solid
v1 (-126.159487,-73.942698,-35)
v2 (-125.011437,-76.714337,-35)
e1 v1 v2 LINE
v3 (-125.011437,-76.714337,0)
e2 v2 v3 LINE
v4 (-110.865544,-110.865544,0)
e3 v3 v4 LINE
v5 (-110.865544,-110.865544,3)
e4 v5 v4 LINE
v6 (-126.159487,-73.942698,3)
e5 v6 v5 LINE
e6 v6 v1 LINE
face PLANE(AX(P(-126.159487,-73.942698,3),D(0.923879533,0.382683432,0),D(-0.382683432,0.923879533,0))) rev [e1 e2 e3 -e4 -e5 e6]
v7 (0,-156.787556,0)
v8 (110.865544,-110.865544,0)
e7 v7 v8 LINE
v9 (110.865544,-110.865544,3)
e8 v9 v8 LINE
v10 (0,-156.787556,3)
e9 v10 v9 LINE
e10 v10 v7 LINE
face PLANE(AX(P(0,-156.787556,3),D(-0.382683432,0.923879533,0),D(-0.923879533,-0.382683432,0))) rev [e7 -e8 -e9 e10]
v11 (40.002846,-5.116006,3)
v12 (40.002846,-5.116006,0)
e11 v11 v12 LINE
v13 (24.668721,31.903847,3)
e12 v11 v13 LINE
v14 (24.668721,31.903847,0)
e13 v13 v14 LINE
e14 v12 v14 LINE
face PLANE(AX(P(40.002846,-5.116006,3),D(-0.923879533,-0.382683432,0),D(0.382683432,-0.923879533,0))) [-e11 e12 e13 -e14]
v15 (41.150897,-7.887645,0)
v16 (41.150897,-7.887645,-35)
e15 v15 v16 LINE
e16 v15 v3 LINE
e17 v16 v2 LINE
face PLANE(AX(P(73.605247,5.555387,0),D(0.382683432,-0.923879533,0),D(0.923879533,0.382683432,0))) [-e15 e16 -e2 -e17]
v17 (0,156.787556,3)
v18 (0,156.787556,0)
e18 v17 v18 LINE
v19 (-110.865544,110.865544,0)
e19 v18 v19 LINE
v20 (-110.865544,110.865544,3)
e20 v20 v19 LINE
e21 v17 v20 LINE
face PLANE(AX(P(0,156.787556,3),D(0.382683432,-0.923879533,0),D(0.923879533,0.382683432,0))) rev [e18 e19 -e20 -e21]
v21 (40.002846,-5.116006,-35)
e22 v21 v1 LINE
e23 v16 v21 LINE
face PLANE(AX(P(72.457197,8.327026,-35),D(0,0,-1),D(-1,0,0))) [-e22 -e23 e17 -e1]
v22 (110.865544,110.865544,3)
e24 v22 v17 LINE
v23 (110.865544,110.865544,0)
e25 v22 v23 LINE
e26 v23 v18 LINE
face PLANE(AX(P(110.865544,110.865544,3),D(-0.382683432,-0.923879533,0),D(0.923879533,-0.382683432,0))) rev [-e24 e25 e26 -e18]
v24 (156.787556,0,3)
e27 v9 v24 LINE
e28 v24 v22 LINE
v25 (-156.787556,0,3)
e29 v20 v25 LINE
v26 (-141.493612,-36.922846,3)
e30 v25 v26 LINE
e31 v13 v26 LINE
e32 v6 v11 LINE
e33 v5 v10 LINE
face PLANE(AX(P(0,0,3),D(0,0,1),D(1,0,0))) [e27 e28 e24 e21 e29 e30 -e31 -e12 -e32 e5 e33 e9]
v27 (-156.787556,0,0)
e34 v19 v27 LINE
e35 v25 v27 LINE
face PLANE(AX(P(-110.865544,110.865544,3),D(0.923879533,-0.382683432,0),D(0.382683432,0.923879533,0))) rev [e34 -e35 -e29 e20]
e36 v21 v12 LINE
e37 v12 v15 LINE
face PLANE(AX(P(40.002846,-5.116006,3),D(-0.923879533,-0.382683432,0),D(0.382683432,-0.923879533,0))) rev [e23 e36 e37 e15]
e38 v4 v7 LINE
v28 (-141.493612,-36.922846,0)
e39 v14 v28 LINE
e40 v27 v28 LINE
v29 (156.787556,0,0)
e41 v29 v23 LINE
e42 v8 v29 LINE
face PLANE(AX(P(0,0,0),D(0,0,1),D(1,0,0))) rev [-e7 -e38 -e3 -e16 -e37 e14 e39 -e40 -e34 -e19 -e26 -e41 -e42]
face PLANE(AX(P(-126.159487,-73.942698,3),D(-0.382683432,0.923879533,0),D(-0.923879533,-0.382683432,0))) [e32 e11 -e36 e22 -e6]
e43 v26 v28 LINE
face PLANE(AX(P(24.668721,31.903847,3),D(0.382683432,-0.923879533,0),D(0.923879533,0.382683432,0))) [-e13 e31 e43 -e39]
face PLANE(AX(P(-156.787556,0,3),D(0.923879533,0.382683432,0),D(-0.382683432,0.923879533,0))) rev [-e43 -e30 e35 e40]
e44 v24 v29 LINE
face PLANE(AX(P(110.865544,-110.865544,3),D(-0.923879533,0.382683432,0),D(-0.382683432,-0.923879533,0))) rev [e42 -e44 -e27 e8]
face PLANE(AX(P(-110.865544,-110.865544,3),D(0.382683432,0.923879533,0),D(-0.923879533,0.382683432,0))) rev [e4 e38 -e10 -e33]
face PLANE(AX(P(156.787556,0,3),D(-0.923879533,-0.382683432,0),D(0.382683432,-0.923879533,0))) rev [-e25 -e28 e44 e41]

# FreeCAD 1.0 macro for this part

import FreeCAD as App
import Part
import Sketcher
from FreeCAD import Vector
Q = App.Units.Quantity

doc = App.newDocument("Part")
params = doc.addObject("Spreadsheet::Sheet", "Params")
for row, (alias, value) in enumerate([
    ("sketch1_length", "120 mm"),
    ("sketch1_length2", "40.07 mm"),
    ("pad1_length", "3 mm"),
    ("sketch2_width", "3 mm"),
    ("sketch2_height", "35 mm"),
    ("pad2_length", "179.852814 mm"),
], start=1):
    params.set(f"A{row}", alias)
    params.set(f"B{row}", "=" + value)
    params.setAlias(f"B{row}", alias)

body = doc.addObject("PartDesign::Body", "Body")

sketch1 = body.newObject("Sketcher::SketchObject", "Sketch")
sketch1.AttachmentSupport = (doc.getObject("XY_Plane"), [""])
sketch1.MapMode = "FlatFace"
sketch1.addGeometry([
    Part.LineSegment(Vector(0, 157, 0), Vector(-111, 111, 0)),
    Part.LineSegment(Vector(-111, 111, 0), Vector(-157, 0, 0)),
    Part.LineSegment(Vector(-157, 0, 0), Vector(-141, -37, 0)),
    Part.LineSegment(Vector(-141, -37, 0), Vector(25, 32, 0)),
    Part.LineSegment(Vector(25, 32, 0), Vector(40, -5, 0)),
    Part.LineSegment(Vector(40, -5, 0), Vector(-126, -74, 0)),
    Part.LineSegment(Vector(-126, -74, 0), Vector(-111, -111, 0)),
    Part.LineSegment(Vector(-111, -111, 0), Vector(0, -157, 0)),
    Part.LineSegment(Vector(0, -157, 0), Vector(111, -111, 0)),
    Part.LineSegment(Vector(111, -111, 0), Vector(157, 0, 0)),
    Part.LineSegment(Vector(157, 0, 0), Vector(111, 111, 0)),
    Part.LineSegment(Vector(111, 111, 0), Vector(0, 157, 0)),
], False)
sketch1.addConstraint([
    Sketcher.Constraint("Coincident", 0, 2, 1, 1),
    Sketcher.Constraint("Coincident", 1, 2, 2, 1),
    Sketcher.Constraint("Coincident", 2, 2, 3, 1),
    Sketcher.Constraint("Coincident", 3, 2, 4, 1),
    Sketcher.Constraint("Coincident", 4, 2, 5, 1),
    Sketcher.Constraint("Coincident", 5, 2, 6, 1),
    Sketcher.Constraint("Coincident", 6, 2, 7, 1),
    Sketcher.Constraint("Coincident", 7, 2, 8, 1),
    Sketcher.Constraint("Coincident", 8, 2, 9, 1),
    Sketcher.Constraint("Coincident", 9, 2, 10, 1),
    Sketcher.Constraint("Coincident", 10, 2, 11, 1),
    Sketcher.Constraint("Coincident", 11, 2, 0, 1),
    Sketcher.Constraint("Symmetric", 0, 2, 8, 2, -1, 1),
    Sketcher.Constraint("Symmetric", 1, 2, 9, 2, -1, 1),
    Sketcher.Constraint("Symmetric", 6, 2, 10, 2, -1, 1),
    Sketcher.Constraint("Symmetric", 7, 2, 11, 2, -1, 1),
    Sketcher.Constraint("Symmetric", 6, 2, 8, 2, -2),
    Sketcher.Constraint("PointOnObject", 1, 2, -1),
    Sketcher.Constraint("PointOnObject", 7, 2, -2),
    Sketcher.Constraint("Perpendicular", 0, 2),
    Sketcher.Constraint("Perpendicular", 2, 3),
    Sketcher.Constraint("Perpendicular", 3, 4),
    Sketcher.Constraint("Perpendicular", 4, 5),
    Sketcher.Constraint("Perpendicular", 5, 6),
    Sketcher.Constraint("Perpendicular", 1, 7),
    Sketcher.Constraint("Equal", 0, 1),
    Sketcher.Constraint("Equal", 2, 6),
    Sketcher.Constraint("Distance", 0, 120.0),
    Sketcher.Constraint("Angle", 0, Q("-157.5 deg")),
    Sketcher.Constraint("Distance", 4, 40.07),
    Sketcher.Constraint("DistanceX", 1, 2, 4, 2, 196.790402),
])
sketch1.setExpression("Constraints[27]", "Params.sketch1_length")
sketch1.setExpression("Constraints[29]", "Params.sketch1_length2")
pad1 = body.newObject("PartDesign::Pad", "Pad")
pad1.Profile = sketch1
pad1.setExpression("Length", "Params.pad1_length")

sketch2 = body.newObject("Sketcher::SketchObject", "Sketch001")
sketch2.Placement = App.Placement(Vector(32.335784, 13.39392, 0), App.Rotation(Vector(0.382683432, -0.923879533, 0), Vector(0, 0, 1.000000001), Vector(-0.923879533, -0.382683432, 0), "ZXY"))
sketch2.addGeometry([
    Part.LineSegment(Vector(20, 0, 0), Vector(20, -35, 0)),
    Part.LineSegment(Vector(20, -35, 0), Vector(23, -35, 0)),
    Part.LineSegment(Vector(23, -35, 0), Vector(23, 0, 0)),
    Part.LineSegment(Vector(23, 0, 0), Vector(20, 0, 0)),
], False)
sketch2.addConstraint([
    Sketcher.Constraint("Coincident", 0, 2, 1, 1),
    Sketcher.Constraint("Coincident", 1, 2, 2, 1),
    Sketcher.Constraint("Coincident", 2, 2, 3, 1),
    Sketcher.Constraint("Coincident", 3, 2, 0, 1),
    Sketcher.Constraint("Vertical", 0),
    Sketcher.Constraint("Horizontal", 1),
    Sketcher.Constraint("Vertical", 2),
    Sketcher.Constraint("Horizontal", 3),
    Sketcher.Constraint("PointOnObject", 2, 2, -1),
    Sketcher.Constraint("DistanceX", 1, 1, 1, 2, 3.0),
    Sketcher.Constraint("DistanceY", 0, 2, 0, 1, 35.0),
    Sketcher.Constraint("DistanceX", -1, 1, 0, 2, 20.035),
])
sketch2.setExpression("Constraints[9]", "Params.sketch2_width")
sketch2.setExpression("Constraints[10]", "Params.sketch2_height")
pad2 = body.newObject("PartDesign::Pad", "Pad001")
pad2.Profile = sketch2
pad2.setExpression("Length", "Params.pad2_length")

doc.recompute()
